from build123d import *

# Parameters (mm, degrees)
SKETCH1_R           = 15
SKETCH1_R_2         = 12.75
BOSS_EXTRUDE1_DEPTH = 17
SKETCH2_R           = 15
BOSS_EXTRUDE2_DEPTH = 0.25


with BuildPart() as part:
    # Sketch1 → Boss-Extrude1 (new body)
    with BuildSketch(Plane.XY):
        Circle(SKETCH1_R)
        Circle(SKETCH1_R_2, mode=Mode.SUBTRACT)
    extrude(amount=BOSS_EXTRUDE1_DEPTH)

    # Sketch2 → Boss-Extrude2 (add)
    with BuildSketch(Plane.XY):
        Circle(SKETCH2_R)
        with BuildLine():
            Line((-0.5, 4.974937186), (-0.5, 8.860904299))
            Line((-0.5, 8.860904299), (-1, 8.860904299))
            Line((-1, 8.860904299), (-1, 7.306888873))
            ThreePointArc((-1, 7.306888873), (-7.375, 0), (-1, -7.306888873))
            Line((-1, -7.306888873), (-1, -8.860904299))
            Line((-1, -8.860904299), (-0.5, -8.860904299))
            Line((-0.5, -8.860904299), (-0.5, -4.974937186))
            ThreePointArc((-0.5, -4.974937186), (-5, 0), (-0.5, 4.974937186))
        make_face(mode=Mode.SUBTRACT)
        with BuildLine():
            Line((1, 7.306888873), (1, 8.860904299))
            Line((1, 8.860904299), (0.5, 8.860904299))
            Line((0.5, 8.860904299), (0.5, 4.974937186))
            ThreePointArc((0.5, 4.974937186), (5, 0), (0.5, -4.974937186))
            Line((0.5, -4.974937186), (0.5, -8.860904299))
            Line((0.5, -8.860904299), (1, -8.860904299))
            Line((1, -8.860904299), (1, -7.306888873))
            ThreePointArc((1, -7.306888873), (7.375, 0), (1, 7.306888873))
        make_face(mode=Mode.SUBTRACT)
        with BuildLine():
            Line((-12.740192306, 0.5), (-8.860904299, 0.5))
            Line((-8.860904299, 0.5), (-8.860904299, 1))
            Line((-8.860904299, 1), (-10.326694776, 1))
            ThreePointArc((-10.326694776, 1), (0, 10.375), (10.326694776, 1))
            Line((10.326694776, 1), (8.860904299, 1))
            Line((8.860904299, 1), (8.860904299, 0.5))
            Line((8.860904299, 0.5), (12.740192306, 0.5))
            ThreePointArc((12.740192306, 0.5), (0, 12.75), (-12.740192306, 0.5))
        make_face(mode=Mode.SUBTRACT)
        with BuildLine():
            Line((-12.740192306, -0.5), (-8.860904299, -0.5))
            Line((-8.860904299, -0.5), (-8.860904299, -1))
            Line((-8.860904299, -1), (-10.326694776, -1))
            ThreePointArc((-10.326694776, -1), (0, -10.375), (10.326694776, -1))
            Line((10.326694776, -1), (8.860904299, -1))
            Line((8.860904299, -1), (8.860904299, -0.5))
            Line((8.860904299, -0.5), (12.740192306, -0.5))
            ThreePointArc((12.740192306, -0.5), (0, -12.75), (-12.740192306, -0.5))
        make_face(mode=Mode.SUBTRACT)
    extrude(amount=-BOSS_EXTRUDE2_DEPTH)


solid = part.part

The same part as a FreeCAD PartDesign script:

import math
import FreeCAD as App
import Part
import Sketcher

V = App.Vector
Q = App.Units.Quantity

doc = App.newDocument("Part")
body = doc.addObject("PartDesign::Body", "Body")

sketch1 = doc.addObject("Sketcher::SketchObject", "Sketch")
body.addObject(sketch1)
sketch1.AttachmentSupport = (doc.XY_Plane, [""])
sketch1.MapMode = "FlatFace"
sketch1.addGeometry([
    Part.Circle(V(0, 0, 0), V(0, 0, 1), 15),
    Part.Circle(V(0, 0, 0), V(0, 0, 1), 12.75),
], False)
sketch1.addConstraint([
    Sketcher.Constraint("Coincident", 0, 3, -1, 1),
    Sketcher.Constraint("Coincident", 1, 3, -1, 1),
    Sketcher.Constraint("Diameter", 0, Q("30 mm")),
    Sketcher.Constraint("Diameter", 1, Q("25.5 mm")),
])
pad1 = doc.addObject("PartDesign::Pad", "Pad")
body.addObject(pad1)
pad1.Profile = sketch1
pad1.Length = 17

sketch2 = doc.addObject("Sketcher::SketchObject", "Sketch001")
body.addObject(sketch2)
sketch2.AttachmentSupport = (doc.XY_Plane, [""])
sketch2.MapMode = "FlatFace"
sketch2.addGeometry([
    Part.Circle(V(0, 0, 0), V(0, 0, 1), 15),
    Part.ArcOfCircle(Part.Circle(V(0, 0, 0), V(0, 0, 1), 12.75), math.radians(-177.75253), math.radians(-2.24747)),
    Part.LineSegment(V(-12.740192, -0.5, 0), V(-8.860904, -0.5, 0)),
    Part.LineSegment(V(-8.860904, -0.5, 0), V(-8.860904, -1, 0)),
    Part.LineSegment(V(-8.860904, -1, 0), V(-10.326695, -1, 0)),
    Part.ArcOfCircle(Part.Circle(V(0, 0, 0), V(0, 0, 1), 10.375), math.radians(-174.468928), math.radians(-5.531072)),
    Part.LineSegment(V(10.326695, -1, 0), V(8.860904, -1, 0)),
    Part.LineSegment(V(8.860904, -1, 0), V(8.860904, -0.5, 0)),
    Part.LineSegment(V(8.860904, -0.5, 0), V(12.740192, -0.5, 0)),
    Part.LineSegment(V(-0.5, 8.860904, 0), V(-0.5, 4.974937, 0)),
    Part.ArcOfCircle(Part.Circle(V(0, 0, 0), V(0, 0, 1), 5), math.radians(95.73917), math.radians(264.26083)),
    Part.LineSegment(V(-0.5, -4.974937, 0), V(-0.5, -8.860904, 0)),
    Part.LineSegment(V(-0.5, -8.860904, 0), V(-1, -8.860904, 0)),
    Part.LineSegment(V(-1, -8.860904, 0), V(-1, -7.306889, 0)),
    Part.ArcOfCircle(Part.Circle(V(0, 0, 0), V(0, 0, 1), 7.375), math.radians(97.792924), math.radians(262.207076)),
    Part.LineSegment(V(-1, 7.306889, 0), V(-1, 8.860904, 0)),
    Part.LineSegment(V(-1, 8.860904, 0), V(-0.5, 8.860904, 0)),
    Part.LineSegment(V(1, 8.860904, 0), V(1, 7.306889, 0)),
    Part.ArcOfCircle(Part.Circle(V(0, 0, 0), V(0, 0, 1), 7.375), math.radians(-82.207076), math.radians(82.207076)),
    Part.LineSegment(V(1, -7.306889, 0), V(1, -8.860904, 0)),
    Part.LineSegment(V(1, -8.860904, 0), V(0.5, -8.860904, 0)),
    Part.LineSegment(V(0.5, -8.860904, 0), V(0.5, -4.974937, 0)),
    Part.ArcOfCircle(Part.Circle(V(0, 0, 0), V(0, 0, 1), 5), math.radians(-84.26083), math.radians(84.26083)),
    Part.LineSegment(V(0.5, 4.974937, 0), V(0.5, 8.860904, 0)),
    Part.LineSegment(V(0.5, 8.860904, 0), V(1, 8.860904, 0)),
    Part.LineSegment(V(-8.860904, 0.5, 0), V(-12.740192, 0.5, 0)),
    Part.ArcOfCircle(Part.Circle(V(0, 0, 0), V(0, 0, 1), 12.75), math.radians(2.24747), math.radians(177.75253)),
    Part.LineSegment(V(12.740192, 0.5, 0), V(8.860904, 0.5, 0)),
    Part.LineSegment(V(8.860904, 0.5, 0), V(8.860904, 1, 0)),
    Part.LineSegment(V(8.860904, 1, 0), V(10.326695, 1, 0)),
    Part.ArcOfCircle(Part.Circle(V(0, 0, 0), V(0, 0, 1), 10.375), math.radians(5.531072), math.radians(174.468928)),
    Part.LineSegment(V(-10.326695, 1, 0), V(-8.860904, 1, 0)),
    Part.LineSegment(V(-8.860904, 1, 0), V(-8.860904, 0.5, 0)),
], False)
sketch2.addConstraint([
    Sketcher.Constraint("Coincident", 1, 1, 2, 1),
    Sketcher.Constraint("Coincident", 2, 2, 3, 1),
    Sketcher.Constraint("Coincident", 3, 2, 4, 1),
    Sketcher.Constraint("Coincident", 4, 2, 5, 1),
    Sketcher.Constraint("Coincident", 5, 2, 6, 1),
    Sketcher.Constraint("Coincident", 6, 2, 7, 1),
    Sketcher.Constraint("Coincident", 7, 2, 8, 1),
    Sketcher.Constraint("Coincident", 8, 2, 1, 2),
    Sketcher.Constraint("Coincident", 9, 2, 10, 1),
    Sketcher.Constraint("Coincident", 10, 2, 11, 1),
    Sketcher.Constraint("Coincident", 11, 2, 12, 1),
    Sketcher.Constraint("Coincident", 12, 2, 13, 1),
    Sketcher.Constraint("Coincident", 13, 2, 14, 2),
    Sketcher.Constraint("Coincident", 14, 1, 15, 1),
    Sketcher.Constraint("Coincident", 15, 2, 16, 1),
    Sketcher.Constraint("Coincident", 16, 2, 9, 1),
    Sketcher.Constraint("Coincident", 17, 2, 18, 2),
    Sketcher.Constraint("Coincident", 18, 1, 19, 1),
    Sketcher.Constraint("Coincident", 19, 2, 20, 1),
    Sketcher.Constraint("Coincident", 20, 2, 21, 1),
    Sketcher.Constraint("Coincident", 21, 2, 22, 1),
    Sketcher.Constraint("Coincident", 22, 2, 23, 1),
    Sketcher.Constraint("Coincident", 23, 2, 24, 1),
    Sketcher.Constraint("Coincident", 24, 2, 17, 1),
    Sketcher.Constraint("Coincident", 25, 2, 26, 2),
    Sketcher.Constraint("Coincident", 26, 1, 27, 1),
    Sketcher.Constraint("Coincident", 27, 2, 28, 1),
    Sketcher.Constraint("Coincident", 28, 2, 29, 1),
    Sketcher.Constraint("Coincident", 29, 2, 30, 1),
    Sketcher.Constraint("Coincident", 30, 2, 31, 1),
    Sketcher.Constraint("Coincident", 31, 2, 32, 1),
    Sketcher.Constraint("Coincident", 32, 2, 25, 1),
    Sketcher.Constraint("Horizontal", 2),
    Sketcher.Constraint("Vertical", 3),
    Sketcher.Constraint("Horizontal", 4),
    Sketcher.Constraint("Horizontal", 6),
    Sketcher.Constraint("Vertical", 7),
    Sketcher.Constraint("Horizontal", 8),
    Sketcher.Constraint("Vertical", 9),
    Sketcher.Constraint("Vertical", 11),
    Sketcher.Constraint("Horizontal", 12),
    Sketcher.Constraint("Vertical", 13),
    Sketcher.Constraint("Vertical", 15),
    Sketcher.Constraint("Horizontal", 16),
    Sketcher.Constraint("Vertical", 17),
    Sketcher.Constraint("Vertical", 19),
    Sketcher.Constraint("Horizontal", 20),
    Sketcher.Constraint("Vertical", 21),
    Sketcher.Constraint("Vertical", 23),
    Sketcher.Constraint("Horizontal", 24),
    Sketcher.Constraint("Horizontal", 25),
    Sketcher.Constraint("Horizontal", 27),
    Sketcher.Constraint("Vertical", 28),
    Sketcher.Constraint("Horizontal", 29),
    Sketcher.Constraint("Horizontal", 31),
    Sketcher.Constraint("Vertical", 32),
    Sketcher.Constraint("Coincident", 0, 3, -1, 1),
    Sketcher.Constraint("Coincident", 1, 3, -1, 1),
    Sketcher.Constraint("Coincident", 5, 3, -1, 1),
    Sketcher.Constraint("Coincident", 10, 3, -1, 1),
    Sketcher.Constraint("Coincident", 14, 3, -1, 1),
    Sketcher.Constraint("Coincident", 18, 3, -1, 1),
    Sketcher.Constraint("Coincident", 22, 3, -1, 1),
    Sketcher.Constraint("Coincident", 26, 3, -1, 1),
    Sketcher.Constraint("Coincident", 30, 3, -1, 1),
    Sketcher.Constraint("Equal", 14, 18),
    Sketcher.Constraint("Equal", 10, 22),
    Sketcher.Constraint("Equal", 1, 26),
    Sketcher.Constraint("Equal", 5, 30),
    Sketcher.Constraint("Symmetric", 15, 2, 19, 2, -1, 1),
    Sketcher.Constraint("Symmetric", 11, 2, 23, 2, -1, 1),
    Sketcher.Constraint("Symmetric", 2, 2, 27, 2, -1, 1),
    Sketcher.Constraint("Symmetric", 6, 2, 31, 2, -1, 1),
    Sketcher.Constraint("Symmetric", 3, 2, 6, 2, -2),
    Sketcher.Constraint("Symmetric", 12, 2, 19, 2, -2),
    Sketcher.Constraint("Horizontal", 2, 2, 7, 2),
    Sketcher.Constraint("Horizontal", 14, 1, 17, 2),
    Sketcher.Constraint("Horizontal", 10, 2, 21, 2),
    Sketcher.Constraint("Horizontal", 9, 2, 22, 2),
    Sketcher.Constraint("Horizontal", 25, 2, 26, 1),
    Sketcher.Constraint("Horizontal", 29, 2, 30, 2),
    Sketcher.Constraint("Equal", 24, 3),
    Sketcher.Constraint("Diameter", 0, Q("30 mm")),
    Sketcher.Constraint("Radius", 10, Q("5 mm")),
    Sketcher.Constraint("Radius", 1, Q("12.75 mm")),
    Sketcher.Constraint("DistanceX", 12, 2, 12, 1, Q("0.5 mm")),
    Sketcher.Constraint("DistanceY", 3, 2, -1, 1, Q("1 mm")),
    Sketcher.Constraint("DistanceX", 12, 2, -1, 1, Q("1 mm")),
    Sketcher.Constraint("Radius", 5, Q("10.375 mm")),
    Sketcher.Constraint("Radius", 14, Q("7.375 mm")),
    Sketcher.Constraint("DistanceX", 2, 1, 2, 2, Q("3.879288 mm")),
    Sketcher.Constraint("DistanceY", 9, 2, 9, 1, Q("3.885967 mm")),
])
pad2 = doc.addObject("PartDesign::Pad", "Pad001")
body.addObject(pad2)
pad2.Profile = sketch2
pad2.Length = 0.25
pad2.Reversed = True

doc.recompute()
